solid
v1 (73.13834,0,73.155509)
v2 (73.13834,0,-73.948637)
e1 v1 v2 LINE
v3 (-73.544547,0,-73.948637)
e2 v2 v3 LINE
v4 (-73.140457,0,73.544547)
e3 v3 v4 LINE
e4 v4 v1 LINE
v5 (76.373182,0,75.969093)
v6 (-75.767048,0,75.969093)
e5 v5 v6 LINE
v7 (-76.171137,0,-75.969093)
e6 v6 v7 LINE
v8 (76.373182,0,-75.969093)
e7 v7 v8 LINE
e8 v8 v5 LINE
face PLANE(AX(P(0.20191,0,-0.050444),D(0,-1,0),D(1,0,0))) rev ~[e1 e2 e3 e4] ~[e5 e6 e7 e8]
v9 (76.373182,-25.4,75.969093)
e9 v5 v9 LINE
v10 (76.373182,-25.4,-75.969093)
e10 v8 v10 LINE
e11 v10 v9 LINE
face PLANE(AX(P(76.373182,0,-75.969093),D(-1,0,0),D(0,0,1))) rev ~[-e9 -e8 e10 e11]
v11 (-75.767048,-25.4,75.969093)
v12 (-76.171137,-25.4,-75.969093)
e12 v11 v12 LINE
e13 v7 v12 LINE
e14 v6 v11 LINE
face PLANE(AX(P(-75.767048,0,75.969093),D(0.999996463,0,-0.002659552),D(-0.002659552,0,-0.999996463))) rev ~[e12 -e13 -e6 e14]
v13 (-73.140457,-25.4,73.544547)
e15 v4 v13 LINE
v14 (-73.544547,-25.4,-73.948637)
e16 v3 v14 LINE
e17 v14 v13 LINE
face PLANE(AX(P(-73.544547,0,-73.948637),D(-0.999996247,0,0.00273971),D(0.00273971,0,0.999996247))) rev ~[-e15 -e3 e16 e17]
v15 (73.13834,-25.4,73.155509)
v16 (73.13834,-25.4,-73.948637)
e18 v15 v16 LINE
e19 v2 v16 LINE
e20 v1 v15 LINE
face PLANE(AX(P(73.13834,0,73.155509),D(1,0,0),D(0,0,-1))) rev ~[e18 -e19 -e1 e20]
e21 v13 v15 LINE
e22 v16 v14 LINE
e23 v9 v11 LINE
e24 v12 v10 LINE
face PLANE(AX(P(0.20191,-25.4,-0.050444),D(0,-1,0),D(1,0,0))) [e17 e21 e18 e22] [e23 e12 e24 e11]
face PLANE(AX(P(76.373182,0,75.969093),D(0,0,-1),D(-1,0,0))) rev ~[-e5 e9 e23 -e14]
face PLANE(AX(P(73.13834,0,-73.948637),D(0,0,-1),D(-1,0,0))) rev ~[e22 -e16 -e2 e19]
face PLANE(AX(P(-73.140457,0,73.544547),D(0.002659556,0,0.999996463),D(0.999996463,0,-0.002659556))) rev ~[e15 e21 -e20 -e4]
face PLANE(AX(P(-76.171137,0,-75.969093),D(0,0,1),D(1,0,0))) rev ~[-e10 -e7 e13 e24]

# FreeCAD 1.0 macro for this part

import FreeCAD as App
import Part
import Sketcher

V = App.Vector
Q = App.Units.Quantity

doc = App.newDocument("Part")
body = doc.addObject("PartDesign::Body", "Body")

sketch1 = doc.addObject("Sketcher::SketchObject", "Sketch")
body.addObject(sketch1)
sketch1.AttachmentSupport = (doc.XZ_Plane, [""])
sketch1.MapMode = "FlatFace"
sketch1.addGeometry([
    Part.LineSegment(V(76, 76, 0), V(-76, 76, 0)),
    Part.LineSegment(V(-76, 76, 0), V(-76, -76, 0)),
    Part.LineSegment(V(-76, -76, 0), V(76, -76, 0)),
    Part.LineSegment(V(76, -76, 0), V(76, 76, 0)),
    Part.LineSegment(V(73, -74, 0), V(-74, -74, 0)),
    Part.LineSegment(V(-74, -74, 0), V(-73, 74, 0)),
    Part.LineSegment(V(-73, 74, 0), V(73, 73, 0)),
    Part.LineSegment(V(73, 73, 0), V(73, -74, 0)),
], False)
sketch1.addConstraint([
    Sketcher.Constraint("Coincident", 0, 2, 1, 1),
    Sketcher.Constraint("Coincident", 1, 2, 2, 1),
    Sketcher.Constraint("Coincident", 2, 2, 3, 1),
    Sketcher.Constraint("Coincident", 3, 2, 0, 1),
    Sketcher.Constraint("Coincident", 4, 2, 5, 1),
    Sketcher.Constraint("Coincident", 5, 2, 6, 1),
    Sketcher.Constraint("Coincident", 6, 2, 7, 1),
    Sketcher.Constraint("Coincident", 7, 2, 4, 1),
    Sketcher.Constraint("Horizontal", 0),
    Sketcher.Constraint("Horizontal", 2),
    Sketcher.Constraint("Vertical", 3),
    Sketcher.Constraint("Horizontal", 4),
    Sketcher.Constraint("Vertical", 7),
    Sketcher.Constraint("Perpendicular", 1, 6),
    Sketcher.Constraint("DistanceX", 0, 2, 4, 2, Q("0.0875 in")),
    Sketcher.Constraint("DistanceX", 0, 2, 0, 1, 152.14023),
    Sketcher.Constraint("DistanceX", 2, 1, 2, 2, 152.544319),
    Sketcher.Constraint("DistanceY", 2, 2, 6, 2, 149.124602),
    Sketcher.Constraint("DistanceX", 4, 2, 4, 1, 146.682887),
    Sketcher.Constraint("DistanceY", 3, 1, 3, 2, 151.938186),
    Sketcher.Constraint("DistanceY", 7, 2, 7, 1, 147.104146),
    Sketcher.Constraint("DistanceX", 0, 2, -1, 1, 75.767048),
    Sketcher.Constraint("DistanceY", -1, 1, 6, 2, 73.155509),
    Sketcher.Constraint("DistanceX", 0, 2, 5, 2, 2.626591),
])
pad1 = doc.addObject("PartDesign::Pad", "Pad")
body.addObject(pad1)
pad1.Profile = sketch1
pad1.Length = Q("1 in")

doc.recompute()
